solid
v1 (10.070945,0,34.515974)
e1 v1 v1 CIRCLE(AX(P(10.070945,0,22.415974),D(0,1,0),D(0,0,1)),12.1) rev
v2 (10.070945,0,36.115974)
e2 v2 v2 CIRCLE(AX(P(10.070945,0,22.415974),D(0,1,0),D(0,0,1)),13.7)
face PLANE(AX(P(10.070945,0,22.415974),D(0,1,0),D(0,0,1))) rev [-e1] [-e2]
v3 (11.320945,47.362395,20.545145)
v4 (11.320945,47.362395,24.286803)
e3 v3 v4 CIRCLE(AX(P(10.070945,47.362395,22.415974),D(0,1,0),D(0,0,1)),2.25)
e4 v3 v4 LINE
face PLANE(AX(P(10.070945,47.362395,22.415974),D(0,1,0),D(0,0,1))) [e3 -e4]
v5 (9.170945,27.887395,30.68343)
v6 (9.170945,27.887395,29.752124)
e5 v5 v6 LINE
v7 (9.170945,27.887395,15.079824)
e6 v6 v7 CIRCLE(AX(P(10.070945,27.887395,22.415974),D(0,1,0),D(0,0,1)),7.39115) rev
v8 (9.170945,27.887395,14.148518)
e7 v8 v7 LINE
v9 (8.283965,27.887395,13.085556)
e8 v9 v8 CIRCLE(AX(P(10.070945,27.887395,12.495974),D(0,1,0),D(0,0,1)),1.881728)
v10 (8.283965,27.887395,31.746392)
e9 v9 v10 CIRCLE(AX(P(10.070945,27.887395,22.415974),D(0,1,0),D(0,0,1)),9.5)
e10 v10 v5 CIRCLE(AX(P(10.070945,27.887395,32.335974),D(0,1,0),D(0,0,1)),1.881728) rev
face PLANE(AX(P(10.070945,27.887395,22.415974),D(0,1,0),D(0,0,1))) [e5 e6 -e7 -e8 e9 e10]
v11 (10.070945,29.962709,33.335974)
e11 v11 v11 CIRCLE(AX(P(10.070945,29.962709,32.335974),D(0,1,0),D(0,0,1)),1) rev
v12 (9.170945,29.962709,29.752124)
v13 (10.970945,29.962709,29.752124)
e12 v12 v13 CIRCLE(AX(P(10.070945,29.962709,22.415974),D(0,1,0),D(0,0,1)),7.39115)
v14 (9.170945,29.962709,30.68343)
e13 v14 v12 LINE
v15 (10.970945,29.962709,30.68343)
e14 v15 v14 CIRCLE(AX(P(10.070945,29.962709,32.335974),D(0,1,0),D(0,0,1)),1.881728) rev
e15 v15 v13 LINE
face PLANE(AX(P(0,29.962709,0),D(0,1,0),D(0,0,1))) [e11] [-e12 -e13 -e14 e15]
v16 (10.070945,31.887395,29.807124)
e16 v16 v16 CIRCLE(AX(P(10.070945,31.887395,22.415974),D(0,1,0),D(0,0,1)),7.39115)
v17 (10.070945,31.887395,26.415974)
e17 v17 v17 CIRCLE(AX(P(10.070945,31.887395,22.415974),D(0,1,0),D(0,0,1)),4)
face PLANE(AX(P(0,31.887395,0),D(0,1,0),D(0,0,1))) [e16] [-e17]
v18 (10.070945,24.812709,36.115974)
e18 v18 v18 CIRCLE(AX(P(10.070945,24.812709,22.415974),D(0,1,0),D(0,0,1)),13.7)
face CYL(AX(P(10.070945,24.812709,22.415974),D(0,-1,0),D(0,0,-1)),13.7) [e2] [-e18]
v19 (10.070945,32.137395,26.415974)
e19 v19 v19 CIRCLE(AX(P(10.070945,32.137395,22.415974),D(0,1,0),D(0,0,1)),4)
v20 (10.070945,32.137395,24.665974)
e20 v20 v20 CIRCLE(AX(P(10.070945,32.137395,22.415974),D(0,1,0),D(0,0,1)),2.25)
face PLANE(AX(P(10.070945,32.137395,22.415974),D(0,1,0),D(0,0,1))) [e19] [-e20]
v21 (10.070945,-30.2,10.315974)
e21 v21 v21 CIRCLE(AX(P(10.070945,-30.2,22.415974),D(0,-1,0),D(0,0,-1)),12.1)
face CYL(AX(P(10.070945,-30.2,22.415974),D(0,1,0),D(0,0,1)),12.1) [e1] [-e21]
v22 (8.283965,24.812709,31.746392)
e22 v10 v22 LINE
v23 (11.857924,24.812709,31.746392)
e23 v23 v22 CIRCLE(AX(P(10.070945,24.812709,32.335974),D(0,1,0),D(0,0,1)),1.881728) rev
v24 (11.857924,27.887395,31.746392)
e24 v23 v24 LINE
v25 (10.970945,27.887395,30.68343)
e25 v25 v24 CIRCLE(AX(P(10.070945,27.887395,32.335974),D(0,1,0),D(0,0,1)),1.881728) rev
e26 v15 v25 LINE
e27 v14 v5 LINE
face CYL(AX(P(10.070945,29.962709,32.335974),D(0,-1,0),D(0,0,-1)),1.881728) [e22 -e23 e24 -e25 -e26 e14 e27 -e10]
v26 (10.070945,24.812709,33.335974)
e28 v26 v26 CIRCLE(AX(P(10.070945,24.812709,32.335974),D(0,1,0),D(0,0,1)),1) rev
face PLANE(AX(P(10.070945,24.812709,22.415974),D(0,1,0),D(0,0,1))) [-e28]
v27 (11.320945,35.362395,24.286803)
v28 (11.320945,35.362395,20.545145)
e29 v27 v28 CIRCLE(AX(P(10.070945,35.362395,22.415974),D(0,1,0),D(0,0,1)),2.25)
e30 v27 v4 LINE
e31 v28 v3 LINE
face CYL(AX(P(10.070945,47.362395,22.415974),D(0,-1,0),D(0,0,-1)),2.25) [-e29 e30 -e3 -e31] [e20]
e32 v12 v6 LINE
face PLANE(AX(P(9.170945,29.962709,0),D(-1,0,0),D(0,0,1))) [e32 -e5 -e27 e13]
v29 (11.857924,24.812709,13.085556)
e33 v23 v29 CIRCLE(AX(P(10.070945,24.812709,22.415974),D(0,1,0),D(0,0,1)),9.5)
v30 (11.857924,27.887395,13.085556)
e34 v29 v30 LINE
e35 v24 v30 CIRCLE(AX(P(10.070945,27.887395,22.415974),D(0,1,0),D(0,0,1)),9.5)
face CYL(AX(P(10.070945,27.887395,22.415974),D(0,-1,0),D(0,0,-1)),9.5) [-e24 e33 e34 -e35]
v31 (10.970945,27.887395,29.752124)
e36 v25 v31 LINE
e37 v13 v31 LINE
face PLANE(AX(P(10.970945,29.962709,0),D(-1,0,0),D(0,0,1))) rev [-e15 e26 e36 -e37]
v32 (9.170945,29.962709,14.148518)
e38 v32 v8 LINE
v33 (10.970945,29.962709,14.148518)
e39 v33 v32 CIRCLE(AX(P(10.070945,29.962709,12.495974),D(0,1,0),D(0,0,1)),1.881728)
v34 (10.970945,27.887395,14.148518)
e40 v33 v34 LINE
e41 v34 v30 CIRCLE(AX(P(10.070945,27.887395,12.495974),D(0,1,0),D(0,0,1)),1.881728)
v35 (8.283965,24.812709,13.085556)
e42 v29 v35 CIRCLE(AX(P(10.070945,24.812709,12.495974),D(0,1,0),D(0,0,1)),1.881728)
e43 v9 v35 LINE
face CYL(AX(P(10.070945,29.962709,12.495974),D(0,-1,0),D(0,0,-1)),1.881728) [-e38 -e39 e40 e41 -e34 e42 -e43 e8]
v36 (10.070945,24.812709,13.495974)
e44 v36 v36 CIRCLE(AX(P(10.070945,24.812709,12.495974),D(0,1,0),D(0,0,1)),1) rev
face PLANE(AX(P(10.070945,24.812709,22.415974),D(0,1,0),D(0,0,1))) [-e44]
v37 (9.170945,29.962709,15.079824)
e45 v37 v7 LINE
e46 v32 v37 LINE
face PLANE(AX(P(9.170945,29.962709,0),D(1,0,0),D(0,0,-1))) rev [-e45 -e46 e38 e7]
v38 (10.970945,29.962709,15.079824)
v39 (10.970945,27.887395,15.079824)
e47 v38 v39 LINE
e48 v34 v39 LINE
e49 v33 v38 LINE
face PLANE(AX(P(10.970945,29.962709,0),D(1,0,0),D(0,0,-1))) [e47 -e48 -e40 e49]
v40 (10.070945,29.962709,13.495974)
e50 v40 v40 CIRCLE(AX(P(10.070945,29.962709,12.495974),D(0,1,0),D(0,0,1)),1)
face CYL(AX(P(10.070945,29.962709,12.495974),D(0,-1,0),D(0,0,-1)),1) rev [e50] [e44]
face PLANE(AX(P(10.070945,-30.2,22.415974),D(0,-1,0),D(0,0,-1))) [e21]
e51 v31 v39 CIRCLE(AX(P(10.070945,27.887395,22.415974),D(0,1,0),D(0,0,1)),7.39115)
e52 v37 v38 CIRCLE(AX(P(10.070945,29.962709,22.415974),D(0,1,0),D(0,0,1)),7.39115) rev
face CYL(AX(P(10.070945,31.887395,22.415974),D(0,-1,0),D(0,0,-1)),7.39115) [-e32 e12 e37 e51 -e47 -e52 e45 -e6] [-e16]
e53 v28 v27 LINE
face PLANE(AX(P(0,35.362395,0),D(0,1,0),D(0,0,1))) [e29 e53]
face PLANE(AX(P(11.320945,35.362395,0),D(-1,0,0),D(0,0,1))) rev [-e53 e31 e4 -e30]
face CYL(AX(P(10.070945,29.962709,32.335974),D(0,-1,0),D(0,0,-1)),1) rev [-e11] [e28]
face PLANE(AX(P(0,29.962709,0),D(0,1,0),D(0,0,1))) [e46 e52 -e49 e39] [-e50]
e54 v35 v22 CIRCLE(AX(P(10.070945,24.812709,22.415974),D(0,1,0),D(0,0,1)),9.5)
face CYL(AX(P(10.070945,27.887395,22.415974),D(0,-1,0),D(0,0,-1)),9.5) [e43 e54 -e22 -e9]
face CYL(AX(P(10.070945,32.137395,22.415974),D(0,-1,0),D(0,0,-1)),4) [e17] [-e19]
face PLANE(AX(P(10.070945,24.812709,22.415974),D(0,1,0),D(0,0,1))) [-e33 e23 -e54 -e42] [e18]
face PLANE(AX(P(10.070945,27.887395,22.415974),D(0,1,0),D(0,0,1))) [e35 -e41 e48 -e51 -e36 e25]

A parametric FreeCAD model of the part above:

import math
import FreeCAD as App
import Part
import Sketcher
Q = App.Units.Quantity

doc = App.newDocument("Part")
params = doc.addObject("Spreadsheet::Sheet", "Params")
for row, (alias, value) in enumerate([
    ("sketch1_diameter", "27.4 mm"),
    ("pad1_length", "24.812709 mm"),
    ("sketch2_diameter", "2 mm"),
    ("pad2_length", "5.15 mm"),
    ("sketch3_diameter", "19 mm"),
    ("pad3_length", "3.074686 mm"),
    ("pad4_length", "4 mm"),
    ("sketch5_diameter", "2 mm"),
    ("pocket1_length", "3.074686 mm"),
    ("sketch6_diameter", "2 mm"),
    ("pocket2_length", "3.074686 mm"),
    ("sketch7_diameter", "8 mm"),
    ("pad5_length", "0.25 mm"),
    ("sketch8_diameter", "4.5 mm"),
    ("pad6_length", "15.225 mm"),
    ("sketch9_radius", "2.25 mm"),
    ("pocket3_length", "12 mm"),
    ("sketch10_diameter", "24.2 mm"),
    ("pad7_length", "30.2 mm"),
], start=1):
    params.set(f"A{row}", alias)
    params.set(f"B{row}", "=" + value)
    params.setAlias(f"B{row}", alias)

body = doc.addObject("PartDesign::Body", "Body")

sketch1 = doc.addObject("Sketcher::SketchObject", "Sketch")
body.addObject(sketch1)
sketch1.AttachmentSupport = (doc.XZ_Plane, [""])
sketch1.MapMode = "FlatFace"
sketch1.addGeometry(Part.Circle(App.Vector(10, 22, 0), App.Vector(0, 0, 1), 14), False)
sketch1.addConstraint([
    Sketcher.Constraint("Diameter", 0, Q("27.4 mm")),
    Sketcher.Constraint("DistanceX", -1, 1, 0, 3, Q("10.070945 mm")),
    Sketcher.Constraint("DistanceY", -1, 1, 0, 3, Q("22.415974 mm")),
])
sketch1.setExpression("Constraints[0]", "Params.sketch1_diameter")
pad1 = doc.addObject("PartDesign::Pad", "Pad")
body.addObject(pad1)
pad1.Profile = sketch1
pad1.setExpression("Length", "Params.pad1_length")
pad1.Reversed = True

sketch2 = doc.addObject("Sketcher::SketchObject", "Sketch001")
body.addObject(sketch2)
sketch2.AttachmentSupport = (doc.XZ_Plane, [""])
sketch2.MapMode = "FlatFace"
sketch2.AttachmentOffset = App.Placement(App.Vector(0, 0, -24.812709), App.Rotation())
sketch2.addGeometry([
    Part.LineSegment(App.Vector(11, 15.1, 0), App.Vector(11, 14.1, 0)),
    Part.ArcOfCircle(Part.Circle(App.Vector(10.1, 12.5, 0), App.Vector(0, 0, 1), 1.9), math.radians(119), math.radians(421)),
    Part.LineSegment(App.Vector(9.2, 14.1, 0), App.Vector(9.2, 15.1, 0)),
    Part.ArcOfCircle(Part.Circle(App.Vector(10.1, 22.4, 0), App.Vector(0, 0, 1), 7.4), math.radians(-96.99), math.radians(-83.01)),
    Part.Circle(App.Vector(10.1, 12.5, 0), App.Vector(0, 0, 1), 1),
    Part.LineSegment(App.Vector(9.2, 29.8, 0), App.Vector(9.2, 30.7, 0)),
    Part.ArcOfCircle(Part.Circle(App.Vector(10.1, 32.3, 0), App.Vector(0, 0, 1), 1.9), math.radians(-61), math.radians(241)),
    Part.LineSegment(App.Vector(11, 30.7, 0), App.Vector(11, 29.8, 0)),
    Part.ArcOfCircle(Part.Circle(App.Vector(10.1, 22.4, 0), App.Vector(0, 0, 1), 7.4), math.radians(83.01), math.radians(96.99)),
    Part.Circle(App.Vector(10.1, 32.3, 0), App.Vector(0, 0, 1), 1),
], False)
sketch2.addConstraint([
    Sketcher.Constraint("Coincident", 0, 2, 1, 2),
    Sketcher.Constraint("Coincident", 1, 1, 2, 1),
    Sketcher.Constraint("Coincident", 2, 2, 3, 1),
    Sketcher.Constraint("Coincident", 3, 2, 0, 1),
    Sketcher.Constraint("Coincident", 5, 2, 6, 2),
    Sketcher.Constraint("Coincident", 6, 1, 7, 1),
    Sketcher.Constraint("Coincident", 7, 2, 8, 1),
    Sketcher.Constraint("Coincident", 8, 2, 5, 1),
    Sketcher.Constraint("Vertical", 0),
    Sketcher.Constraint("Vertical", 2),
    Sketcher.Constraint("Vertical", 5),
    Sketcher.Constraint("Vertical", 7),
    Sketcher.Constraint("Coincident", 4, 3, 1, 3),
    Sketcher.Constraint("Coincident", 8, 3, 3, 3),
    Sketcher.Constraint("Coincident", 9, 3, 6, 3),
    Sketcher.Constraint("Equal", 1, 6),
    Sketcher.Constraint("Equal", 3, 8),
    Sketcher.Constraint("Equal", 4, 9),
    Sketcher.Constraint("Horizontal", 0, 2, 1, 1),
    Sketcher.Constraint("Horizontal", 2, 2, 3, 2),
    Sketcher.Constraint("Horizontal", 5, 2, 6, 1),
    Sketcher.Constraint("Horizontal", 7, 2, 8, 2),
    Sketcher.Constraint("Vertical", 2, 2, 5, 2),
    Sketcher.Constraint("Equal", 2, 5),
    Sketcher.Constraint("Diameter", 4, Q("2 mm")),
    Sketcher.Constraint("DistanceX", 1, 3, 0, 2, Q("0.9 mm")),
    Sketcher.Constraint("Radius", 1, Q("1.881728 mm")),
    Sketcher.Constraint("Radius", 3, Q("7.39115 mm")),
    Sketcher.Constraint("DistanceY", 1, 3, 3, 3, Q("9.92 mm")),
    Sketcher.Constraint("DistanceY", -1, 1, 0, 2, Q("14.148518 mm")),
    Sketcher.Constraint("DistanceX", -1, 1, 1, 3, Q("10.070945 mm")),
])
sketch2.setExpression("Constraints[24]", "Params.sketch2_diameter")
pad2 = doc.addObject("PartDesign::Pad", "Pad001")
body.addObject(pad2)
pad2.Profile = sketch2
pad2.setExpression("Length", "Params.pad2_length")
pad2.Reversed = True

sketch3 = doc.addObject("Sketcher::SketchObject", "Sketch002")
body.addObject(sketch3)
sketch3.AttachmentSupport = (doc.XZ_Plane, [""])
sketch3.MapMode = "FlatFace"
sketch3.AttachmentOffset = App.Placement(App.Vector(0, 0, -24.812709), App.Rotation())
sketch3.addGeometry(Part.Circle(App.Vector(10, 22, 0), App.Vector(0, 0, 1), 10), False)
sketch3.addConstraint([
    Sketcher.Constraint("Diameter", 0, Q("19 mm")),
    Sketcher.Constraint("DistanceX", -1, 1, 0, 3, Q("10.070945 mm")),
    Sketcher.Constraint("DistanceY", -1, 1, 0, 3, Q("22.415974 mm")),
])
sketch3.setExpression("Constraints[0]", "Params.sketch3_diameter")
pad3 = doc.addObject("PartDesign::Pad", "Pad002")
body.addObject(pad3)
pad3.Profile = sketch3
pad3.setExpression("Length", "Params.pad3_length")
pad3.Reversed = True

sketch4 = doc.addObject("Sketcher::SketchObject", "Sketch003")
body.addObject(sketch4)
sketch4.AttachmentSupport = (doc.XZ_Plane, [""])
sketch4.MapMode = "FlatFace"
sketch4.AttachmentOffset = App.Placement(App.Vector(0, 0, -27.887395), App.Rotation())
sketch4.addGeometry([
    Part.ArcOfCircle(Part.Circle(App.Vector(10.1, 22.4, 0), App.Vector(0, 0, 1), 7.4), math.radians(-83), math.radians(0)),
    Part.ArcOfCircle(Part.Circle(App.Vector(10.1, 22.4, 0), App.Vector(0, 0, 1), 7.4), math.radians(-96.99), math.radians(-83.01)),
    Part.ArcOfCircle(Part.Circle(App.Vector(10.1, 22.4, 0), App.Vector(0, 0, 1), 7.4), math.radians(97), math.radians(263)),
    Part.ArcOfCircle(Part.Circle(App.Vector(10.1, 22.4, 0), App.Vector(0, 0, 1), 7.4), math.radians(83.01), math.radians(96.99)),
    Part.ArcOfCircle(Part.Circle(App.Vector(10.1, 22.4, 0), App.Vector(0, 0, 1), 7.4), math.radians(0), math.radians(83)),
], False)
sketch4.addConstraint([
    Sketcher.Constraint("Tangent", 0, 1, 1, 2),
    Sketcher.Constraint("Tangent", 1, 1, 2, 2),
    Sketcher.Constraint("Tangent", 2, 1, 3, 2),
    Sketcher.Constraint("Tangent", 3, 1, 4, 2),
    Sketcher.Constraint("Tangent", 4, 1, 0, 2),
    Sketcher.Constraint("Coincident", 2, 3, 0, 3),
    Sketcher.Constraint("Horizontal", 0, 1, 1, 1),
    Sketcher.Constraint("Horizontal", 2, 1, 3, 1),
    Sketcher.Constraint("Horizontal", 3, 3, 4, 1),
    Sketcher.Constraint("Vertical", 1, 1, 2, 1),
    Sketcher.Constraint("DistanceX", 2, 3, 0, 1, Q("0.9 mm")),
    Sketcher.Constraint("Radius", 0, Q("7.39115 mm")),
    Sketcher.Constraint("DistanceX", -1, 1, 0, 3, Q("10.070945 mm")),
    Sketcher.Constraint("DistanceY", -1, 1, 0, 3, Q("22.415974 mm")),
])
pad4 = doc.addObject("PartDesign::Pad", "Pad003")
body.addObject(pad4)
pad4.Profile = sketch4
pad4.setExpression("Length", "Params.pad4_length")
pad4.Reversed = True

sketch5 = doc.addObject("Sketcher::SketchObject", "Sketch004")
body.addObject(sketch5)
sketch5.AttachmentSupport = (doc.XZ_Plane, [""])
sketch5.MapMode = "FlatFace"
sketch5.AttachmentOffset = App.Placement(App.Vector(0, 0, -24.812709), App.Rotation())
sketch5.addGeometry(Part.Circle(App.Vector(10.1, 12.5, 0), App.Vector(0, 0, 1), 1), False)
sketch5.addConstraint([
    Sketcher.Constraint("Diameter", 0, Q("2 mm")),
    Sketcher.Constraint("DistanceX", -1, 1, 0, 3, Q("10.070945 mm")),
    Sketcher.Constraint("DistanceY", -1, 1, 0, 3, Q("12.495974 mm")),
])
sketch5.setExpression("Constraints[0]", "Params.sketch5_diameter")
pocket1 = doc.addObject("PartDesign::Pocket", "Pocket")
body.addObject(pocket1)
pocket1.Profile = sketch5
pocket1.setExpression("Length", "Params.pocket1_length")

sketch6 = doc.addObject("Sketcher::SketchObject", "Sketch005")
body.addObject(sketch6)
sketch6.AttachmentSupport = (doc.XZ_Plane, [""])
sketch6.MapMode = "FlatFace"
sketch6.AttachmentOffset = App.Placement(App.Vector(0, 0, -24.812709), App.Rotation())
sketch6.addGeometry(Part.Circle(App.Vector(10.1, 32.3, 0), App.Vector(0, 0, 1), 1), False)
sketch6.addConstraint([
    Sketcher.Constraint("Diameter", 0, Q("2 mm")),
    Sketcher.Constraint("DistanceX", -1, 1, 0, 3, Q("10.070945 mm")),
    Sketcher.Constraint("DistanceY", -1, 1, 0, 3, Q("32.335974 mm")),
])
sketch6.setExpression("Constraints[0]", "Params.sketch6_diameter")
pocket2 = doc.addObject("PartDesign::Pocket", "Pocket001")
body.addObject(pocket2)
pocket2.Profile = sketch6
pocket2.setExpression("Length", "Params.pocket2_length")

sketch7 = doc.addObject("Sketcher::SketchObject", "Sketch006")
body.addObject(sketch7)
sketch7.AttachmentSupport = (doc.XZ_Plane, [""])
sketch7.MapMode = "FlatFace"
sketch7.AttachmentOffset = App.Placement(App.Vector(0, 0, -31.887395), App.Rotation())
sketch7.addGeometry(Part.Circle(App.Vector(10.1, 22.4, 0), App.Vector(0, 0, 1), 4), False)
sketch7.addConstraint([
    Sketcher.Constraint("Diameter", 0, Q("8 mm")),
    Sketcher.Constraint("DistanceX", -1, 1, 0, 3, Q("10.070945 mm")),
    Sketcher.Constraint("DistanceY", -1, 1, 0, 3, Q("22.415974 mm")),
])
sketch7.setExpression("Constraints[0]", "Params.sketch7_diameter")
pad5 = doc.addObject("PartDesign::Pad", "Pad004")
body.addObject(pad5)
pad5.Profile = sketch7
pad5.setExpression("Length", "Params.pad5_length")
pad5.Reversed = True

sketch8 = doc.addObject("Sketcher::SketchObject", "Sketch007")
body.addObject(sketch8)
sketch8.AttachmentSupport = (doc.XZ_Plane, [""])
sketch8.MapMode = "FlatFace"
sketch8.AttachmentOffset = App.Placement(App.Vector(0, 0, -32.137395), App.Rotation())
sketch8.addGeometry(Part.Circle(App.Vector(10.1, 22.4, 0), App.Vector(0, 0, 1), 2.2), False)
sketch8.addConstraint([
    Sketcher.Constraint("Diameter", 0, Q("4.5 mm")),
    Sketcher.Constraint("DistanceX", -1, 1, 0, 3, Q("10.070945 mm")),
    Sketcher.Constraint("DistanceY", -1, 1, 0, 3, Q("22.415974 mm")),
])
sketch8.setExpression("Constraints[0]", "Params.sketch8_diameter")
pad6 = doc.addObject("PartDesign::Pad", "Pad005")
body.addObject(pad6)
pad6.Profile = sketch8
pad6.setExpression("Length", "Params.pad6_length")
pad6.Reversed = True

sketch9 = doc.addObject("Sketcher::SketchObject", "Sketch008")
body.addObject(sketch9)
sketch9.AttachmentSupport = (doc.XZ_Plane, [""])
sketch9.MapMode = "FlatFace"
sketch9.AttachmentOffset = App.Placement(App.Vector(0, 0, -47.362395), App.Rotation())
sketch9.addGeometry([
    Part.ArcOfCircle(Part.Circle(App.Vector(10.1, 22.4, 0), App.Vector(0, 0, 1), 2.3), math.radians(-56), math.radians(0)),
    Part.LineSegment(App.Vector(11.3, 20.5, 0), App.Vector(11.3, 24.3, 0)),
    Part.ArcOfCircle(Part.Circle(App.Vector(10.1, 22.4, 0), App.Vector(0, 0, 1), 2.3), math.radians(0), math.radians(56)),
], False)
sketch9.addConstraint([
    Sketcher.Constraint("Coincident", 0, 1, 1, 1),
    Sketcher.Constraint("Coincident", 1, 2, 2, 2),
    Sketcher.Constraint("Tangent", 2, 1, 0, 2),
    Sketcher.Constraint("Vertical", 1),
    Sketcher.Constraint("Equal", 0, 2),
    Sketcher.Constraint("Horizontal", 0, 3, 2, 1),
    Sketcher.Constraint("Radius", 0, Q("2.25 mm")),
    Sketcher.Constraint("DistanceX", 1, 2, 2, 1, Q("1 mm")),
    Sketcher.Constraint("DistanceX", -1, 1, 0, 3, Q("10.070945 mm")),
    Sketcher.Constraint("DistanceY", -1, 1, 0, 3, Q("22.415974 mm")),
])
sketch9.setExpression("Constraints[6]", "Params.sketch9_radius")
pocket3 = doc.addObject("PartDesign::Pocket", "Pocket002")
body.addObject(pocket3)
pocket3.Profile = sketch9
pocket3.setExpression("Length", "Params.pocket3_length")
pocket3.Reversed = True

sketch10 = doc.addObject("Sketcher::SketchObject", "Sketch009")
body.addObject(sketch10)
sketch10.AttachmentSupport = (doc.XZ_Plane, [""])
sketch10.MapMode = "FlatFace"
sketch10.addGeometry(Part.Circle(App.Vector(10, 22, 0), App.Vector(0, 0, 1), 12), False)
sketch10.addConstraint([
    Sketcher.Constraint("Diameter", 0, Q("24.2 mm")),
    Sketcher.Constraint("DistanceX", -1, 1, 0, 3, Q("10.070945 mm")),
    Sketcher.Constraint("DistanceY", -1, 1, 0, 3, Q("22.415974 mm")),
])
sketch10.setExpression("Constraints[0]", "Params.sketch10_diameter")
pad7 = doc.addObject("PartDesign::Pad", "Pad006")
body.addObject(pad7)
pad7.Profile = sketch10
pad7.setExpression("Length", "Params.pad7_length")

doc.recompute()
